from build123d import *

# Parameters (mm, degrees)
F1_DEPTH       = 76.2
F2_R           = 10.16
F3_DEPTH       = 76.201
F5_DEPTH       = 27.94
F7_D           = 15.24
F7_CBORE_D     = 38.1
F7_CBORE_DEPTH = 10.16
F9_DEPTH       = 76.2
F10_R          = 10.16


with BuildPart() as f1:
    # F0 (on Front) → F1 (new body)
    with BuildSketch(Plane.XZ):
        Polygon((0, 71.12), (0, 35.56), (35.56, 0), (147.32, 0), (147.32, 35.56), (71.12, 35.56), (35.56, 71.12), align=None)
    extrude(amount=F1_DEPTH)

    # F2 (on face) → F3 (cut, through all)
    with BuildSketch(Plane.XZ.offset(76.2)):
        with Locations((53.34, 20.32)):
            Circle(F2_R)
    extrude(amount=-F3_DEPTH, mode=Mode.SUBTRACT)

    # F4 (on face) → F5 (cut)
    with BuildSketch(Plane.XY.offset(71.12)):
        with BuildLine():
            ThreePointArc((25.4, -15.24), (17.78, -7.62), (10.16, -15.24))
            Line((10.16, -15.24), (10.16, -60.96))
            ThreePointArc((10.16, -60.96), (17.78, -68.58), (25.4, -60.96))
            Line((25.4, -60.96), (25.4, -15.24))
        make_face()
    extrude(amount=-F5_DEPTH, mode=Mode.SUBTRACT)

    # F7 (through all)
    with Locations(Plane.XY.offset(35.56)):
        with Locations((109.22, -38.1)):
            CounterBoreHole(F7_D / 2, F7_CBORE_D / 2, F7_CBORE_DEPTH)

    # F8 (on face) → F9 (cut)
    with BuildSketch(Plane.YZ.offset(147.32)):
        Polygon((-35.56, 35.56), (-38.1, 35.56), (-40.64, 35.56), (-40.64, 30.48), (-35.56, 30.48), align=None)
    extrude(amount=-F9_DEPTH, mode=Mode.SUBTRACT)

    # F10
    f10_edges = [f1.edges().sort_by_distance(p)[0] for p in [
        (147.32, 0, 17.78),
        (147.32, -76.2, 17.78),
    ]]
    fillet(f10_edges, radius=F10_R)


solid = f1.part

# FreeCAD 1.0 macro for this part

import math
import FreeCAD as App
import Part
import Sketcher
Q = App.Units.Quantity


def edges_at(feature, points):
    """Names of the edges that pass closest to the given points."""
    edges = feature.Shape.Edges
    near = lambda p: min(range(len(edges)), key=lambda i: edges[i].distToShape(Part.Vertex(*p))[0])
    return sorted({f"Edge{near(p) + 1}" for p in points})

doc = App.newDocument("Part")
body = doc.addObject("PartDesign::Body", "Body")

# Sketch on XZ plane
sketch1 = body.newObject("Sketcher::SketchObject", "Sketch")
sketch1.AttachmentSupport = (doc.getObject("XZ_Plane"), [""])
sketch1.MapMode = "FlatFace"
sketch1.addGeometry([
    Part.LineSegment(App.Vector(0, 71, 0), App.Vector(0, 36, 0)),  # 0
    Part.LineSegment(App.Vector(0, 36, 0), App.Vector(36, 0, 0)),  # 1
    Part.LineSegment(App.Vector(36, 0, 0), App.Vector(147, 0, 0)),  # 2
    Part.LineSegment(App.Vector(147, 0, 0), App.Vector(147, 36, 0)),  # 3
    Part.LineSegment(App.Vector(147, 36, 0), App.Vector(71, 36, 0)),  # 4
    Part.LineSegment(App.Vector(71, 36, 0), App.Vector(36, 71, 0)),  # 5
    Part.LineSegment(App.Vector(36, 71, 0), App.Vector(0, 71, 0)),  # 6
], False)
sketch1.addConstraint([
    Sketcher.Constraint("Coincident", 0, 2, 1, 1),
    Sketcher.Constraint("Coincident", 1, 2, 2, 1),
    Sketcher.Constraint("Coincident", 2, 2, 3, 1),
    Sketcher.Constraint("Coincident", 3, 2, 4, 1),
    Sketcher.Constraint("Coincident", 4, 2, 5, 1),
    Sketcher.Constraint("Coincident", 5, 2, 6, 1),
    Sketcher.Constraint("Coincident", 6, 2, 0, 1),
    Sketcher.Constraint("Vertical", 0),
    Sketcher.Constraint("Horizontal", 2),
    Sketcher.Constraint("Vertical", 3),
    Sketcher.Constraint("Horizontal", 4),
    Sketcher.Constraint("Horizontal", 6),
    Sketcher.Constraint("PointOnObject", 0, 2, -2),
    Sketcher.Constraint("PointOnObject", 1, 2, -1),
    Sketcher.Constraint("Parallel", 1, 5),
    Sketcher.Constraint("Horizontal", 0, 2, 3, 2),
    Sketcher.Constraint("Vertical", 1, 2, 5, 2),
    Sketcher.Constraint("Equal", 6, 0),
    Sketcher.Constraint("Equal", 0, 3),
    Sketcher.Constraint("DistanceX", 4, 2, 4, 1, Q("3 in")),
    Sketcher.Constraint("DistanceX", 2, 1, 2, 2, Q("4.4 in")),
])
pad1 = body.newObject("PartDesign::Pad", "Pad")
pad1.Profile = sketch1
pad1.Length = Q("3 in")

# Sketch on XZ plane
sketch2 = body.newObject("Sketcher::SketchObject", "Sketch001")
sketch2.AttachmentSupport = (doc.getObject("XZ_Plane"), [""])
sketch2.MapMode = "FlatFace"
sketch2.AttachmentOffset = App.Placement(App.Vector(0, 0, 3 * 25.4), App.Rotation())
sketch2.addGeometry(Part.Circle(App.Vector(53, 20, 0), App.Vector(0, 0, 1), 10), False)
sketch2.addConstraint([
    Sketcher.Constraint("Diameter", 0, Q("0.8 in")),
    Sketcher.Constraint("DistanceX", -1, 1, 0, 3, Q("2.1 in")),
    Sketcher.Constraint("DistanceY", -1, 1, 0, 3, Q("0.8 in")),
])
pocket1 = body.newObject("PartDesign::Pocket", "Pocket")
pocket1.Profile = sketch2
pocket1.Type = "ThroughAll"

# Sketch on XY plane
sketch3 = body.newObject("Sketcher::SketchObject", "Sketch002")
sketch3.AttachmentSupport = (doc.getObject("XY_Plane"), [""])
sketch3.MapMode = "FlatFace"
sketch3.AttachmentOffset = App.Placement(App.Vector(0, 0, 2.8 * 25.4), App.Rotation())
sketch3.addGeometry([
    Part.ArcOfCircle(Part.Circle(App.Vector(18, -15, 0), App.Vector(0, 0, 1), 8), math.radians(0), math.radians(180)),
    Part.LineSegment(App.Vector(10, -15, 0), App.Vector(10, -61, 0)),
    Part.ArcOfCircle(Part.Circle(App.Vector(18, -61, 0), App.Vector(0, 0, 1), 8), math.radians(180), math.radians(360)),
    Part.LineSegment(App.Vector(25, -61, 0), App.Vector(25, -15, 0)),
], False)
sketch3.addConstraint([
    Sketcher.Constraint("Tangent", 0, 2, 1, 1),
    Sketcher.Constraint("Tangent", 1, 2, 2, 1),
    Sketcher.Constraint("Tangent", 2, 2, 3, 1),
    Sketcher.Constraint("Tangent", 3, 2, 0, 1),
    Sketcher.Constraint("Vertical", 1),
    Sketcher.Constraint("Vertical", 3),
    Sketcher.Constraint("Radius", 0, Q("0.3 in")),
    Sketcher.Constraint("DistanceY", 1, 2, 1, 1, Q("1.8 in")),
    Sketcher.Constraint("DistanceX", -1, 1, 2, 2, Q("1 in")),
    Sketcher.Constraint("DistanceY", 0, 3, -1, 1, Q("0.6 in")),
])
pocket2 = body.newObject("PartDesign::Pocket", "Pocket001")
pocket2.Profile = sketch3
pocket2.Length = Q("1.1 in")

# Sketch on XY plane
sketch4 = body.newObject("Sketcher::SketchObject", "Sketch003")
sketch4.AttachmentSupport = (doc.getObject("XY_Plane"), [""])
sketch4.MapMode = "FlatFace"
sketch4.AttachmentOffset = App.Placement(App.Vector(0, 0, 1.4 * 25.4), App.Rotation())
sketch4.addGeometry(Part.Circle(App.Vector(109, -38, 0), App.Vector(0, 0, 1), 8), False)
sketch4.addConstraint([
    Sketcher.Constraint("Diameter", 0, Q("0.6 in")),
    Sketcher.Constraint("DistanceX", -1, 1, 0, 3, Q("4.3 in")),
    Sketcher.Constraint("DistanceY", 0, 3, -1, 1, Q("1.5 in")),
])
doc.recompute()
hole = body.newObject("PartDesign::Hole", "Hole")
hole.Profile = sketch4
hole.ThreadType = "None"
hole.Diameter = Q("0.6 in")
hole.DepthType = "ThroughAll"
hole.HoleCutType = "Counterbore"
hole.HoleCutDiameter = Q("1.5 in")
hole.HoleCutDepth = Q("0.4 in")

# Sketch on YZ plane
sketch5 = body.newObject("Sketcher::SketchObject", "Sketch004")
sketch5.AttachmentSupport = (doc.getObject("YZ_Plane"), [""])
sketch5.MapMode = "FlatFace"
sketch5.AttachmentOffset = App.Placement(App.Vector(0, 0, 5.8 * 25.4), App.Rotation())
sketch5.addGeometry([
    Part.LineSegment(App.Vector(-36, 36, 0), App.Vector(-41, 36, 0)),
    Part.LineSegment(App.Vector(-41, 36, 0), App.Vector(-41, 30, 0)),
    Part.LineSegment(App.Vector(-41, 30, 0), App.Vector(-36, 30, 0)),
    Part.LineSegment(App.Vector(-36, 30, 0), App.Vector(-36, 36, 0)),
], False)
sketch5.addConstraint([
    Sketcher.Constraint("Coincident", 0, 2, 1, 1),
    Sketcher.Constraint("Coincident", 1, 2, 2, 1),
    Sketcher.Constraint("Coincident", 2, 2, 3, 1),
    Sketcher.Constraint("Coincident", 3, 2, 0, 1),
    Sketcher.Constraint("Horizontal", 0),
    Sketcher.Constraint("Vertical", 1),
    Sketcher.Constraint("Horizontal", 2),
    Sketcher.Constraint("Vertical", 3),
    Sketcher.Constraint("Equal", 2, 1),
    Sketcher.Constraint("DistanceX", 0, 2, 0, 1, Q("0.2 in")),
    Sketcher.Constraint("DistanceX", 0, 2, -1, 1, Q("1.6 in")),
    Sketcher.Constraint("DistanceY", -1, 1, 0, 2, Q("1.4 in")),
])
pocket3 = body.newObject("PartDesign::Pocket", "Pocket002")
pocket3.Profile = sketch5
pocket3.Length = Q("3 in")
doc.recompute()

fillet = body.newObject("PartDesign::Fillet", "Fillet")
fillet.Base = (pocket3, edges_at(pocket3, [(147.32, 0, 17.78), (147.32, -76.2, 17.78)]))
fillet.Radius = Q("0.4 in")

doc.recompute()
